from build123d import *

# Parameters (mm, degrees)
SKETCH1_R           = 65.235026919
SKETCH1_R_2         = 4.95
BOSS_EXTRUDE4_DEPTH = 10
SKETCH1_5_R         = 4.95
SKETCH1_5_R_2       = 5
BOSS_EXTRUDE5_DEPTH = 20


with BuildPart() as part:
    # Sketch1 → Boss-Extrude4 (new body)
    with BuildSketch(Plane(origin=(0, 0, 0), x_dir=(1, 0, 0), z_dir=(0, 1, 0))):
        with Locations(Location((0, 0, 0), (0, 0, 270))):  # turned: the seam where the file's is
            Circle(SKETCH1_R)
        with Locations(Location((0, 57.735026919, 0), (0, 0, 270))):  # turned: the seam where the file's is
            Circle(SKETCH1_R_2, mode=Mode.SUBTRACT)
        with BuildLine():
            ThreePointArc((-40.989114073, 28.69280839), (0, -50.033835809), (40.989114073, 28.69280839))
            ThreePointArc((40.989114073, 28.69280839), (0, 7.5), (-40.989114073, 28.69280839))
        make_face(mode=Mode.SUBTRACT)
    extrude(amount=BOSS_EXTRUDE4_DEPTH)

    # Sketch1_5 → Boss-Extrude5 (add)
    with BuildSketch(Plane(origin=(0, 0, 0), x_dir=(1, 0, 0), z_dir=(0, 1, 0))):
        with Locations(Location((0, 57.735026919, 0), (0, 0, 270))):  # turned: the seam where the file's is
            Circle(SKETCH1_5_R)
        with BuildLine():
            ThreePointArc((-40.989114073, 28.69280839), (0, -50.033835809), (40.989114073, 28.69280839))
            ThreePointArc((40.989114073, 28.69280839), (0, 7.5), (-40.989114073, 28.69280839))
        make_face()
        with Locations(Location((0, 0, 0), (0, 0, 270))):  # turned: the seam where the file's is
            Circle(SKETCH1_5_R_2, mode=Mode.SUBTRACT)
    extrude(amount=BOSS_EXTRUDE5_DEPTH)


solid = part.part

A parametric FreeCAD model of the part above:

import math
import FreeCAD as App
import Part
import Sketcher

doc = App.newDocument("Part")
body = doc.addObject("PartDesign::Body", "Body")

sketch1 = body.newObject("Sketcher::SketchObject", "Sketch")
sketch1.AttachmentSupport = (doc.getObject("XZ_Plane"), [""])
sketch1.MapMode = "FlatFace"
sketch1.addGeometry([
    Part.Circle(App.Vector(0, 0, 0), App.Vector(0, 0, 1), 65.2),
    Part.Circle(App.Vector(0, -57.7, 0), App.Vector(0, 0, 1), 5),
    Part.ArcOfCircle(Part.Circle(App.Vector(0, 0, 0), App.Vector(0, 0, 1), 50), math.radians(-35), math.radians(215)),
    Part.ArcOfCircle(Part.Circle(App.Vector(0, -57.7, 0), App.Vector(0, 0, 1), 50.2), math.radians(35), math.radians(145)),
], False)
sketch1.addConstraint([
    Sketcher.Constraint("Coincident", 2, 1, 3, 1),
    Sketcher.Constraint("Coincident", 3, 2, 2, 2),
    Sketcher.Constraint("Coincident", 0, 3, -1, 1),
    Sketcher.Constraint("Coincident", 2, 3, -1, 1),
    Sketcher.Constraint("Coincident", 3, 3, 1, 3),
    Sketcher.Constraint("PointOnObject", 1, 3, -2),
    Sketcher.Constraint("Diameter", 1, 9.9),
    Sketcher.Constraint("Diameter", 0, 130.470054),
    Sketcher.Constraint("Radius", 2, 50.033836),
    Sketcher.Constraint("Radius", 3, 50.235027),
    Sketcher.Constraint("DistanceY", 2, 1, -1, 1, 28.692808),
])
pad1 = body.newObject("PartDesign::Pad", "Pad")
pad1.Profile = sketch1
pad1.Length = 10
pad1.Reversed = True

sketch2 = body.newObject("Sketcher::SketchObject", "Sketch001")
sketch2.AttachmentSupport = (doc.getObject("XZ_Plane"), [""])
sketch2.MapMode = "FlatFace"
sketch2.addGeometry([
    Part.Circle(App.Vector(0, -57.7, 0), App.Vector(0, 0, 1), 5),
    Part.ArcOfCircle(Part.Circle(App.Vector(0, 0, 0), App.Vector(0, 0, 1), 50), math.radians(-35), math.radians(215)),
    Part.ArcOfCircle(Part.Circle(App.Vector(0, -57.7, 0), App.Vector(0, 0, 1), 50.2), math.radians(35), math.radians(145)),
    Part.Circle(App.Vector(0, 0, 0), App.Vector(0, 0, 1), 5),
], False)
sketch2.addConstraint([
    Sketcher.Constraint("Coincident", 1, 1, 2, 1),
    Sketcher.Constraint("Coincident", 2, 2, 1, 2),
    Sketcher.Constraint("Coincident", 1, 3, -1, 1),
    Sketcher.Constraint("Coincident", 3, 3, -1, 1),
    Sketcher.Constraint("Coincident", 2, 3, 0, 3),
    Sketcher.Constraint("PointOnObject", 0, 3, -2),
    Sketcher.Constraint("Diameter", 3, 10.0),
    Sketcher.Constraint("Diameter", 0, 9.9),
    Sketcher.Constraint("Radius", 1, 50.033836),
    Sketcher.Constraint("Radius", 2, 50.235027),
    Sketcher.Constraint("DistanceY", 1, 1, -1, 1, 28.692808),
])
pad2 = body.newObject("PartDesign::Pad", "Pad001")
pad2.Profile = sketch2
pad2.Length = 20
pad2.Reversed = True

doc.recompute()
